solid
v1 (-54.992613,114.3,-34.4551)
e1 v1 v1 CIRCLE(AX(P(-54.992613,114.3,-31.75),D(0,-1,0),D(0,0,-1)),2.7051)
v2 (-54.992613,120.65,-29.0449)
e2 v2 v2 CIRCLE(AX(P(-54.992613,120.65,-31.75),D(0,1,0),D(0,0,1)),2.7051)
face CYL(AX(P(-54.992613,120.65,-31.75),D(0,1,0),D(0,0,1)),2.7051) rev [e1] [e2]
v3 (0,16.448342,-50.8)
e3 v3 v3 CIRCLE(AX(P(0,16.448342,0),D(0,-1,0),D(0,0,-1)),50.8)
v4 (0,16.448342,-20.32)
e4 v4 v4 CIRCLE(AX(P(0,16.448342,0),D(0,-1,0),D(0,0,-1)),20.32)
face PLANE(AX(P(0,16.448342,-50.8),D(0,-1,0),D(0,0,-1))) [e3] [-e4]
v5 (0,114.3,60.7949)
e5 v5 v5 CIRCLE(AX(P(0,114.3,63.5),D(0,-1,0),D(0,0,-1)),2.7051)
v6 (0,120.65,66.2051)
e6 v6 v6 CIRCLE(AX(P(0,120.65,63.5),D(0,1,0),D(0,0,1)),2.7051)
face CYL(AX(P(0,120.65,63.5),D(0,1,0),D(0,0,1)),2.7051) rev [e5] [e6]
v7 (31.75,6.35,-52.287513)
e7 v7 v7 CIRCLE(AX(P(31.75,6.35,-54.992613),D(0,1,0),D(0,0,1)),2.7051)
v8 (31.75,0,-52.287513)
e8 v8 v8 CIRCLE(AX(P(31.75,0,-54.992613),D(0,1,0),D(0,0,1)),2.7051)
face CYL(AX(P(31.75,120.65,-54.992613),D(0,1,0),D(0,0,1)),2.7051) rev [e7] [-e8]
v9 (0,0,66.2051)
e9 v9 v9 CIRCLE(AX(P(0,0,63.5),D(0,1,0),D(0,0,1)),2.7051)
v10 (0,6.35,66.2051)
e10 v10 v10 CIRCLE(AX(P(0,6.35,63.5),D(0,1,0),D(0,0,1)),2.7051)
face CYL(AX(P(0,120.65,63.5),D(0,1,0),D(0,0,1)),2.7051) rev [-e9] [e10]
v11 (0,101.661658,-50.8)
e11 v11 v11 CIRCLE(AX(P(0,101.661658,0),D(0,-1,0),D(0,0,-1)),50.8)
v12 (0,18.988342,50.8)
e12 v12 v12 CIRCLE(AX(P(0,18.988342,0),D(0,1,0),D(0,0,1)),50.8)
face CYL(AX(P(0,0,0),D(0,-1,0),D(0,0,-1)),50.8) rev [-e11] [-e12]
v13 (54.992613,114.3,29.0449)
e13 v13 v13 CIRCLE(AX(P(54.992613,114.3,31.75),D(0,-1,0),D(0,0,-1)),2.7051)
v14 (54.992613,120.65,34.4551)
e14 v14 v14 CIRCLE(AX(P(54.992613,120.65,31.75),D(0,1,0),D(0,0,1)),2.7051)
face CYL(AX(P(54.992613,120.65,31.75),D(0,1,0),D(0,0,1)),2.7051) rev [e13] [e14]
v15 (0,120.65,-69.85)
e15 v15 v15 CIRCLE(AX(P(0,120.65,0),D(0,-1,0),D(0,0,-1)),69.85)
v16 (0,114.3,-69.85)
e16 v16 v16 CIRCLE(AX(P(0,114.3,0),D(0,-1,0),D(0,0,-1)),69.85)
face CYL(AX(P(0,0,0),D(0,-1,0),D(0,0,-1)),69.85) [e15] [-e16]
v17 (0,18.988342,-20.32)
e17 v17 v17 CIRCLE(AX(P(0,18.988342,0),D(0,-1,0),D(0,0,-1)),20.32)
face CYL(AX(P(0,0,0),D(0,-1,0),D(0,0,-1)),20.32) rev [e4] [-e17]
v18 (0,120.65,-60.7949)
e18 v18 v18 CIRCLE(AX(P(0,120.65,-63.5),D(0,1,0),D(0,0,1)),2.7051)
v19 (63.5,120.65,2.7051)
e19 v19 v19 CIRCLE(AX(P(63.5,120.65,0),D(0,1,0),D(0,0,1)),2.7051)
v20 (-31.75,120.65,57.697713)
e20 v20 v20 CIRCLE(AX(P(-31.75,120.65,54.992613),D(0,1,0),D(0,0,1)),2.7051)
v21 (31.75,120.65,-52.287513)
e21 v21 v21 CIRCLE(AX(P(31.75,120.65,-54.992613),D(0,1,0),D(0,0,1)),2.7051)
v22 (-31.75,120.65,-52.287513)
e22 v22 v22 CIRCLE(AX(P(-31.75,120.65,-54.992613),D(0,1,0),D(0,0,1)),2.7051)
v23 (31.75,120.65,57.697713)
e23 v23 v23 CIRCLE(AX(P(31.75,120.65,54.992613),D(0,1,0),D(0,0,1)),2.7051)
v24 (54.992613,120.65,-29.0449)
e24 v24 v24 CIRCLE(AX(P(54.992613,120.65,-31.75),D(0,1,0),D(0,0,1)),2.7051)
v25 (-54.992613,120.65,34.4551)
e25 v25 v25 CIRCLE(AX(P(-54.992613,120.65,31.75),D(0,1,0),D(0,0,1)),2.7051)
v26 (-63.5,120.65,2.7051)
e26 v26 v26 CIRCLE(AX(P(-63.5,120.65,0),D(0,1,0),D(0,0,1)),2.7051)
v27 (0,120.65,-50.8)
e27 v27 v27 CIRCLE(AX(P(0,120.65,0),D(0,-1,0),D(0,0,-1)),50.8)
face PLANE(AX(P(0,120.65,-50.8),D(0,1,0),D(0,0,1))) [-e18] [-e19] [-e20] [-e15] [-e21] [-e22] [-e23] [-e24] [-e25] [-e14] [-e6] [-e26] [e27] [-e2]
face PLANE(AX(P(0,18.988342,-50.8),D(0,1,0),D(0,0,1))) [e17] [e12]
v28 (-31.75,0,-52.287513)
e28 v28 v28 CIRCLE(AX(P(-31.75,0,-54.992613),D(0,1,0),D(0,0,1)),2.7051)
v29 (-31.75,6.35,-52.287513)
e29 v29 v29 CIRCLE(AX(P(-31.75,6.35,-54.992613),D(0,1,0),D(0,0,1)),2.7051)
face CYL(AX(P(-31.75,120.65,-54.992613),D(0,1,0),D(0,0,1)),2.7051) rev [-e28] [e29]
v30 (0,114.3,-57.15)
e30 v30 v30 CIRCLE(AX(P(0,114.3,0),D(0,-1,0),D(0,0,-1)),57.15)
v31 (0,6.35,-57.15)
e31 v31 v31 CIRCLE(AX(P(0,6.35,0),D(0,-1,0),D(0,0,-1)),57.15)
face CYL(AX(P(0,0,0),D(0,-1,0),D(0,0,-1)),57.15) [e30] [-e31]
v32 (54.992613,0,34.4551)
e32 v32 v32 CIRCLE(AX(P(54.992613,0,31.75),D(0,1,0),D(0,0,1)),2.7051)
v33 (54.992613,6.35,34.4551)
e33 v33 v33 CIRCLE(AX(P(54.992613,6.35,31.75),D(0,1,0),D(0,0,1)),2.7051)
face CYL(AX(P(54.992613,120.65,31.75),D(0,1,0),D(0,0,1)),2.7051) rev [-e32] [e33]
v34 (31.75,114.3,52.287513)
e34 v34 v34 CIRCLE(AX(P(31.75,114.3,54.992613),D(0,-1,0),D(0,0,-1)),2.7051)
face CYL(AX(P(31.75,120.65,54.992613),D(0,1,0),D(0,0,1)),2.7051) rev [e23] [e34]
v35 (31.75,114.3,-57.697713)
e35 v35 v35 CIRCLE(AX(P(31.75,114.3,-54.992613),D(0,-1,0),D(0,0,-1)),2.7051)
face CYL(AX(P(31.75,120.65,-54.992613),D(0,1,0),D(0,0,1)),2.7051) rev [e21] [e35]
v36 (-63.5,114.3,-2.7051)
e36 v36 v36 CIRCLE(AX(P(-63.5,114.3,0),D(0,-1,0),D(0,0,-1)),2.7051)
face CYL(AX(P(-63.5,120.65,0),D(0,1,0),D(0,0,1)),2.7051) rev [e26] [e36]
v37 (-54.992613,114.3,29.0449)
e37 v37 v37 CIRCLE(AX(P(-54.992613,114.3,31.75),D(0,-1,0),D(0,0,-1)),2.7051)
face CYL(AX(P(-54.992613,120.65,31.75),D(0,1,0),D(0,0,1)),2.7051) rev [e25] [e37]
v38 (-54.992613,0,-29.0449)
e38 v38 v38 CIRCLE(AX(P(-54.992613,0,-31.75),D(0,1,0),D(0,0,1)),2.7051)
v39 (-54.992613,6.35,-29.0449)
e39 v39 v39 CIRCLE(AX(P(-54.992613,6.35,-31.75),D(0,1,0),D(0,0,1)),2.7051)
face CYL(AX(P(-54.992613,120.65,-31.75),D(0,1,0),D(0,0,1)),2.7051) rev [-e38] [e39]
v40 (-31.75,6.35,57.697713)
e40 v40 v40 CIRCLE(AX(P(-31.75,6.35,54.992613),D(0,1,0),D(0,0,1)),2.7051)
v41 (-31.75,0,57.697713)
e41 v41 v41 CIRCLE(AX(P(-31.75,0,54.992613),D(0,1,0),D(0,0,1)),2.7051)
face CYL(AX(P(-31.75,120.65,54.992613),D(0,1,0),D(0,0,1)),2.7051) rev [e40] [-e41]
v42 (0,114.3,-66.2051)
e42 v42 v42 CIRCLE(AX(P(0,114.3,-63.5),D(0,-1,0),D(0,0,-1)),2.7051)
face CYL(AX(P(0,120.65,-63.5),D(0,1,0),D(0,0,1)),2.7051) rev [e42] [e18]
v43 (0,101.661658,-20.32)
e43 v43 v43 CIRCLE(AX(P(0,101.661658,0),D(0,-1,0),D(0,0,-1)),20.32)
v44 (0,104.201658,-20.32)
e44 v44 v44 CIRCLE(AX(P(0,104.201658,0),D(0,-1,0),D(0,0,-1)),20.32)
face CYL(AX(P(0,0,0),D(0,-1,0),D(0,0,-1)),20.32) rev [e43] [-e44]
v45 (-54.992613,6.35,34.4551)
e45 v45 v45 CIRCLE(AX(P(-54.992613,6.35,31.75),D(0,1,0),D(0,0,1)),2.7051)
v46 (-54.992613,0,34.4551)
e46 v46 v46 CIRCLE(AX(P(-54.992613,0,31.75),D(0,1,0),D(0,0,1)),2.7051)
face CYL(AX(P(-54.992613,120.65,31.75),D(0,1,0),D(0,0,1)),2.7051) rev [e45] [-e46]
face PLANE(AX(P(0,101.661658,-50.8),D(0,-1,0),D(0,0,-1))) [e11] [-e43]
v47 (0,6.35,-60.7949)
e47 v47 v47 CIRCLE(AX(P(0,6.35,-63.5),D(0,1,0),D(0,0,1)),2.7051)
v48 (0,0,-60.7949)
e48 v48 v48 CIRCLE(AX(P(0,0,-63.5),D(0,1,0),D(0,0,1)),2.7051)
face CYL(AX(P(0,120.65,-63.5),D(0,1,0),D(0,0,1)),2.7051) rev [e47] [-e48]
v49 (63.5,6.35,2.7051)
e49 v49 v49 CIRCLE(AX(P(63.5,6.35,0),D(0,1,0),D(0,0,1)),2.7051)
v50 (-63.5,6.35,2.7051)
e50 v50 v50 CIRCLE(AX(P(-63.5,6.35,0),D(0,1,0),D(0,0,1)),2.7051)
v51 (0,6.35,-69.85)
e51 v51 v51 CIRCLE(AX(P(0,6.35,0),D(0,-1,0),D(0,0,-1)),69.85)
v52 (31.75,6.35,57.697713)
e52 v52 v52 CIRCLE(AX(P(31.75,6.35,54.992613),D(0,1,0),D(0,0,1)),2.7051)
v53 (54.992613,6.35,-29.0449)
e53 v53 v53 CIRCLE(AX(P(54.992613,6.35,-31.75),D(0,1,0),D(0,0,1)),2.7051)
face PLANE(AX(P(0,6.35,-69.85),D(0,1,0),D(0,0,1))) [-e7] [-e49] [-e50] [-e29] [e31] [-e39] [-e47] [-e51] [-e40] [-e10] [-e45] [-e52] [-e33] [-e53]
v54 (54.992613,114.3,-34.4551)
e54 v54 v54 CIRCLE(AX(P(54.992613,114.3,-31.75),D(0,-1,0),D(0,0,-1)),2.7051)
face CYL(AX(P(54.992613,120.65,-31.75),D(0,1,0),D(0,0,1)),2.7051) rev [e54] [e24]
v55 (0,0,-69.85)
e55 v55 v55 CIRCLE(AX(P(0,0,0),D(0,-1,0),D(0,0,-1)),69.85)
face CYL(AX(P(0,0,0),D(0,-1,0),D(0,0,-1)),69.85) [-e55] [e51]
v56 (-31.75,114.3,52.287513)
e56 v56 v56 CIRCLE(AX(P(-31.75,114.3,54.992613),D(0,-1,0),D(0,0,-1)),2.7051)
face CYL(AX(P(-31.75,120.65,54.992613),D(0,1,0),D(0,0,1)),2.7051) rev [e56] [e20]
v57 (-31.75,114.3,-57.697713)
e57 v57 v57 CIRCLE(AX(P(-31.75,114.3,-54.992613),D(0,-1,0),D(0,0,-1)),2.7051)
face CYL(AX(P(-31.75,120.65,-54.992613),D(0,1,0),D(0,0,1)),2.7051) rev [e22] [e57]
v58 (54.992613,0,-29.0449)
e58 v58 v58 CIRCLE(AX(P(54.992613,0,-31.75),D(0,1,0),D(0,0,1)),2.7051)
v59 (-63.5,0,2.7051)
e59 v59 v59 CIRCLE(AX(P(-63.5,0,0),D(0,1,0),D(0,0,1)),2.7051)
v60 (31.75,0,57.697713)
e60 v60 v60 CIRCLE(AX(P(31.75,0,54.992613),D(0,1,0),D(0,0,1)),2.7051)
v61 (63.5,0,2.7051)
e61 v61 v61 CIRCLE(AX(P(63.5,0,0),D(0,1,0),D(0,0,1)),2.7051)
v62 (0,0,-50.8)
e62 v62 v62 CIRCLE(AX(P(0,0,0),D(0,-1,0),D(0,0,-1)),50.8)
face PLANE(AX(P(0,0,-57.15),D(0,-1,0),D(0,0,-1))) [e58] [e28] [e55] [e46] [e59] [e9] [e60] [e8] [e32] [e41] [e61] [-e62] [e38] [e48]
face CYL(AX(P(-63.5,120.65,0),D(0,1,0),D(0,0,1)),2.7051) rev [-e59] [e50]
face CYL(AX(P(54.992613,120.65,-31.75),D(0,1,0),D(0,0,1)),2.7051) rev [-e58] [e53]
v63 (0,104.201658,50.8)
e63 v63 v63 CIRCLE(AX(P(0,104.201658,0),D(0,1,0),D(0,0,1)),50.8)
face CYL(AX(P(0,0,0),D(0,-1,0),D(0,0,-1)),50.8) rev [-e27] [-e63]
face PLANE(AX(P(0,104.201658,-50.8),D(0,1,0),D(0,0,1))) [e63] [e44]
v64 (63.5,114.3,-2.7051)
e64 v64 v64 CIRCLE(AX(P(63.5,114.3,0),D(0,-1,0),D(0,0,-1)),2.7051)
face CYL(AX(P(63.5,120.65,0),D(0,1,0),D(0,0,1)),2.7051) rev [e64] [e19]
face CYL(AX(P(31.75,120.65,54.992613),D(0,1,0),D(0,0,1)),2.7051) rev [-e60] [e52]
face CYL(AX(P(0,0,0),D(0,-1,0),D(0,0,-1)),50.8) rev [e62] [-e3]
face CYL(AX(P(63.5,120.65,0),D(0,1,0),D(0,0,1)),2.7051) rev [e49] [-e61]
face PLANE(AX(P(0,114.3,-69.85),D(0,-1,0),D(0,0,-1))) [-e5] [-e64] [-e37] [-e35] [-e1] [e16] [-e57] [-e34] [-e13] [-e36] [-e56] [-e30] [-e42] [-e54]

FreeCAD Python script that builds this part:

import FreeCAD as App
import Part
import Sketcher
from FreeCAD import Vector
Q = App.Units.Quantity

doc = App.newDocument("Part")
body = doc.addObject("PartDesign::Body", "Body")

# Sketch on YZ plane
sketch1 = body.newObject("Sketcher::SketchObject", "Sketch")
sketch1.AttachmentSupport = (doc.getObject("YZ_Plane"), [""])
sketch1.MapMode = "FlatFace"
sketch1.addGeometry(Part.LineSegment(Vector(6.35, -57.15, 0), Vector(114.3, -57.15, 0)), False)
sketch1.addGeometry(Part.LineSegment(Vector(114.3, -57.15, 0), Vector(114.3, -69.85, 0)), False)
sketch1.addGeometry(Part.LineSegment(Vector(114.3, -69.85, 0), Vector(120.65, -69.85, 0)), False)
sketch1.addGeometry(Part.LineSegment(Vector(120.65, -69.85, 0), Vector(120.65, -50.8, 0)), False)
sketch1.addGeometry(Part.LineSegment(Vector(120.65, -50.8, 0), Vector(0, -50.8, 0)), False)
sketch1.addGeometry(Part.LineSegment(Vector(0, -50.8, 0), Vector(0, -69.85, 0)), False)
sketch1.addGeometry(Part.LineSegment(Vector(0, -69.85, 0), Vector(6.35, -69.85, 0)), False)
sketch1.addGeometry(Part.LineSegment(Vector(6.35, -69.85, 0), Vector(6.35, -57.15, 0)), False)
sketch1.addConstraint(Sketcher.Constraint("Coincident", 0, 2, 1, 1))
sketch1.addConstraint(Sketcher.Constraint("Coincident", 1, 2, 2, 1))
sketch1.addConstraint(Sketcher.Constraint("Coincident", 2, 2, 3, 1))
sketch1.addConstraint(Sketcher.Constraint("Coincident", 3, 2, 4, 1))
sketch1.addConstraint(Sketcher.Constraint("Coincident", 4, 2, 5, 1))
sketch1.addConstraint(Sketcher.Constraint("Coincident", 5, 2, 6, 1))
sketch1.addConstraint(Sketcher.Constraint("Coincident", 6, 2, 7, 1))
sketch1.addConstraint(Sketcher.Constraint("Coincident", 7, 2, 0, 1))
sketch1.addConstraint(Sketcher.Constraint("Horizontal", 0))
sketch1.addConstraint(Sketcher.Constraint("Vertical", 1))
sketch1.addConstraint(Sketcher.Constraint("Horizontal", 2))
sketch1.addConstraint(Sketcher.Constraint("Vertical", 3))
sketch1.addConstraint(Sketcher.Constraint("Horizontal", 4))
sketch1.addConstraint(Sketcher.Constraint("Vertical", 5))
sketch1.addConstraint(Sketcher.Constraint("Horizontal", 6))
sketch1.addConstraint(Sketcher.Constraint("Vertical", 7))
sketch1.addConstraint(Sketcher.Constraint("PointOnObject", 4, 2, -2))
sketch1.addConstraint(Sketcher.Constraint("Horizontal", 2, 2, 5, 2))
sketch1.addConstraint(Sketcher.Constraint("Equal", 2, 6))
sketch1.addConstraint(Sketcher.Constraint("DistanceY", 1, 2, 1, 1, Q("0.5 in")))
sketch1.addConstraint(Sketcher.Constraint("DistanceY", 3, 2, -1, 1, Q("2 in")))
sketch1.addConstraint(Sketcher.Constraint("DistanceX", 0, 1, 0, 2, Q("4.25 in")))
sketch1.addConstraint(Sketcher.Constraint("DistanceX", 2, 1, 2, 2, Q("0.25 in")))
sketch1.addConstraint(Sketcher.Constraint("DistanceY", 3, 1, 3, 2, Q("0.75 in")))
revolution = body.newObject("PartDesign::Revolution", "Revolution")
revolution.Profile = sketch1
revolution.ReferenceAxis = (sketch1, ["H_Axis"])
revolution.Angle = 360

# Sketch on YZ plane
sketch2 = body.newObject("Sketcher::SketchObject", "Sketch001")
sketch2.AttachmentSupport = (doc.getObject("YZ_Plane"), [""])
sketch2.MapMode = "FlatFace"
sketch2.addGeometry(Part.LineSegment(Vector(104.201658, -20.32, 0), Vector(101.661658, -20.32, 0)), False)
sketch2.addGeometry(Part.LineSegment(Vector(101.661658, -20.32, 0), Vector(101.661658, -50.8, 0)), False)
sketch2.addGeometry(Part.LineSegment(Vector(101.661658, -50.8, 0), Vector(104.201658, -50.8, 0)), False)
sketch2.addGeometry(Part.LineSegment(Vector(104.201658, -50.8, 0), Vector(104.201658, -20.32, 0)), False)
sketch2.addGeometry(Part.LineSegment(Vector(18.988342, -20.32, 0), Vector(16.448342, -20.32, 0)), False)
sketch2.addGeometry(Part.LineSegment(Vector(16.448342, -20.32, 0), Vector(16.448342, -50.8, 0)), False)
sketch2.addGeometry(Part.LineSegment(Vector(16.448342, -50.8, 0), Vector(18.988342, -50.8, 0)), False)
sketch2.addGeometry(Part.LineSegment(Vector(18.988342, -50.8, 0), Vector(18.988342, -20.32, 0)), False)
sketch2.addConstraint(Sketcher.Constraint("Coincident", 0, 2, 1, 1))
sketch2.addConstraint(Sketcher.Constraint("Coincident", 1, 2, 2, 1))
sketch2.addConstraint(Sketcher.Constraint("Coincident", 2, 2, 3, 1))
sketch2.addConstraint(Sketcher.Constraint("Coincident", 3, 2, 0, 1))
sketch2.addConstraint(Sketcher.Constraint("Coincident", 4, 2, 5, 1))
sketch2.addConstraint(Sketcher.Constraint("Coincident", 5, 2, 6, 1))
sketch2.addConstraint(Sketcher.Constraint("Coincident", 6, 2, 7, 1))
sketch2.addConstraint(Sketcher.Constraint("Coincident", 7, 2, 4, 1))
sketch2.addConstraint(Sketcher.Constraint("Horizontal", 0))
sketch2.addConstraint(Sketcher.Constraint("Vertical", 1))
sketch2.addConstraint(Sketcher.Constraint("Horizontal", 2))
sketch2.addConstraint(Sketcher.Constraint("Vertical", 3))
sketch2.addConstraint(Sketcher.Constraint("Horizontal", 4))
sketch2.addConstraint(Sketcher.Constraint("Vertical", 5))
sketch2.addConstraint(Sketcher.Constraint("Horizontal", 6))
sketch2.addConstraint(Sketcher.Constraint("Vertical", 7))
sketch2.addConstraint(Sketcher.Constraint("Horizontal", 3, 2, 4, 2))
sketch2.addConstraint(Sketcher.Constraint("Horizontal", 2, 2, 5, 2))
sketch2.addConstraint(Sketcher.Constraint("Equal", 2, 4))
sketch2.addConstraint(Sketcher.Constraint("DistanceX", 0, 2, 0, 1, Q("0.1 in")))
sketch2.addConstraint(Sketcher.Constraint("DistanceY", 1, 2, 1, 1, Q("1.2 in")))
sketch2.addConstraint(Sketcher.Constraint("DistanceY", 1, 2, -1, 1, Q("2 in")))
sketch2.addConstraint(Sketcher.Constraint("DistanceX", -1, 1, 0, 2, 101.661658))
sketch2.addConstraint(Sketcher.Constraint("DistanceX", -1, 1, 4, 2, 16.448342))
revolution2 = body.newObject("PartDesign::Revolution", "Revolution001")
revolution2.Profile = sketch2
revolution2.ReferenceAxis = (sketch2, ["H_Axis"])
revolution2.Angle = 360

# Sketch on XZ plane
sketch3 = body.newObject("Sketcher::SketchObject", "Sketch002")
sketch3.AttachmentSupport = (doc.getObject("XZ_Plane"), [""])
sketch3.MapMode = "FlatFace"
sketch3.AttachmentOffset = App.Placement(Vector(0, 0, -4.75 * 25.4), App.Rotation())
sketch3.addGeometry(Part.Circle(Vector(0, 0, 0), Vector(0, 0, 1), 2.7051), False)
sketch3.addGeometry(Part.Circle(Vector(-63.5, 0, 0), Vector(0, 0, 1), 2.7051), False)
sketch3.addGeometry(Part.Circle(Vector(-54.992613, -31.75, 0), Vector(0, 0, 1), 2.7051), False)
sketch3.addGeometry(Part.Circle(Vector(-31.75, -54.992613, 0), Vector(0, 0, 1), 2.7051), False)
sketch3.addGeometry(Part.Circle(Vector(0, -63.5, 0), Vector(0, 0, 1), 2.7051), False)
sketch3.addGeometry(Part.Circle(Vector(31.75, -54.992613, 0), Vector(0, 0, 1), 2.7051), False)
sketch3.addGeometry(Part.Circle(Vector(54.992613, -31.75, 0), Vector(0, 0, 1), 2.7051), False)
sketch3.addGeometry(Part.Circle(Vector(63.5, 0, 0), Vector(0, 0, 1), 2.7051), False)
sketch3.addGeometry(Part.Circle(Vector(54.992613, 31.75, 0), Vector(0, 0, 1), 2.7051), False)
sketch3.addGeometry(Part.Circle(Vector(31.75, 54.992613, 0), Vector(0, 0, 1), 2.7051), False)
sketch3.addGeometry(Part.Circle(Vector(0, 63.5, 0), Vector(0, 0, 1), 2.7051), False)
sketch3.addGeometry(Part.Circle(Vector(-31.75, 54.992613, 0), Vector(0, 0, 1), 2.7051), False)
sketch3.addGeometry(Part.Circle(Vector(-54.992613, 31.75, 0), Vector(0, 0, 1), 2.7051), False)
sketch3.addConstraint(Sketcher.Constraint("Coincident", 0, 3, -1, 1))
sketch3.addConstraint(Sketcher.Constraint("Equal", 0, 1))
sketch3.addConstraint(Sketcher.Constraint("Equal", 1, 2))
sketch3.addConstraint(Sketcher.Constraint("Equal", 2, 3))
sketch3.addConstraint(Sketcher.Constraint("Equal", 3, 4))
sketch3.addConstraint(Sketcher.Constraint("Equal", 4, 5))
sketch3.addConstraint(Sketcher.Constraint("Equal", 5, 6))
sketch3.addConstraint(Sketcher.Constraint("Equal", 6, 7))
sketch3.addConstraint(Sketcher.Constraint("Equal", 7, 8))
sketch3.addConstraint(Sketcher.Constraint("Equal", 8, 9))
sketch3.addConstraint(Sketcher.Constraint("Equal", 9, 10))
sketch3.addConstraint(Sketcher.Constraint("Equal", 10, 11))
sketch3.addConstraint(Sketcher.Constraint("Equal", 11, 12))
sketch3.addConstraint(Sketcher.Constraint("Symmetric", 1, 3, 7, 3, -1, 1))
sketch3.addConstraint(Sketcher.Constraint("Symmetric", 2, 3, 8, 3, -1, 1))
sketch3.addConstraint(Sketcher.Constraint("Symmetric", 3, 3, 9, 3, -1, 1))
sketch3.addConstraint(Sketcher.Constraint("Symmetric", 4, 3, 10, 3, -1, 1))
sketch3.addConstraint(Sketcher.Constraint("Symmetric", 5, 3, 11, 3, -1, 1))
sketch3.addConstraint(Sketcher.Constraint("Symmetric", 6, 3, 12, 3, -1, 1))
sketch3.addConstraint(Sketcher.Constraint("Symmetric", 3, 3, 5, 3, -2))
sketch3.addConstraint(Sketcher.Constraint("Symmetric", 2, 3, 6, 3, -2))
sketch3.addConstraint(Sketcher.Constraint("PointOnObject", 1, 3, -1))
sketch3.addConstraint(Sketcher.Constraint("PointOnObject", 4, 3, -2))
sketch3.addConstraint(Sketcher.Constraint("Diameter", 0, Q("0.213 in")))
sketch3.addConstraint(Sketcher.Constraint("DistanceX", 1, 3, -1, 1, Q("2.5 in")))
sketch3.addConstraint(Sketcher.Constraint("DistanceY", 4, 3, -1, 1, Q("2.5 in")))
sketch3.addConstraint(Sketcher.Constraint("DistanceX", 3, 3, 5, 3, Q("2.5 in")))
sketch3.addConstraint(Sketcher.Constraint("DistanceY", 6, 3, 8, 3, Q("2.5 in")))
sketch3.addConstraint(Sketcher.Constraint("DistanceX", 2, 3, -1, 1, 54.992613))
sketch3.addConstraint(Sketcher.Constraint("DistanceY", 3, 3, -1, 1, 54.992613))
doc.recompute()
hole = body.newObject("PartDesign::Hole", "Hole")
hole.Profile = sketch3
hole.ThreadType = "None"
hole.Diameter = Q("0.213 in")
hole.DepthType = "ThroughAll"
hole.Reversed = True

doc.recompute()
